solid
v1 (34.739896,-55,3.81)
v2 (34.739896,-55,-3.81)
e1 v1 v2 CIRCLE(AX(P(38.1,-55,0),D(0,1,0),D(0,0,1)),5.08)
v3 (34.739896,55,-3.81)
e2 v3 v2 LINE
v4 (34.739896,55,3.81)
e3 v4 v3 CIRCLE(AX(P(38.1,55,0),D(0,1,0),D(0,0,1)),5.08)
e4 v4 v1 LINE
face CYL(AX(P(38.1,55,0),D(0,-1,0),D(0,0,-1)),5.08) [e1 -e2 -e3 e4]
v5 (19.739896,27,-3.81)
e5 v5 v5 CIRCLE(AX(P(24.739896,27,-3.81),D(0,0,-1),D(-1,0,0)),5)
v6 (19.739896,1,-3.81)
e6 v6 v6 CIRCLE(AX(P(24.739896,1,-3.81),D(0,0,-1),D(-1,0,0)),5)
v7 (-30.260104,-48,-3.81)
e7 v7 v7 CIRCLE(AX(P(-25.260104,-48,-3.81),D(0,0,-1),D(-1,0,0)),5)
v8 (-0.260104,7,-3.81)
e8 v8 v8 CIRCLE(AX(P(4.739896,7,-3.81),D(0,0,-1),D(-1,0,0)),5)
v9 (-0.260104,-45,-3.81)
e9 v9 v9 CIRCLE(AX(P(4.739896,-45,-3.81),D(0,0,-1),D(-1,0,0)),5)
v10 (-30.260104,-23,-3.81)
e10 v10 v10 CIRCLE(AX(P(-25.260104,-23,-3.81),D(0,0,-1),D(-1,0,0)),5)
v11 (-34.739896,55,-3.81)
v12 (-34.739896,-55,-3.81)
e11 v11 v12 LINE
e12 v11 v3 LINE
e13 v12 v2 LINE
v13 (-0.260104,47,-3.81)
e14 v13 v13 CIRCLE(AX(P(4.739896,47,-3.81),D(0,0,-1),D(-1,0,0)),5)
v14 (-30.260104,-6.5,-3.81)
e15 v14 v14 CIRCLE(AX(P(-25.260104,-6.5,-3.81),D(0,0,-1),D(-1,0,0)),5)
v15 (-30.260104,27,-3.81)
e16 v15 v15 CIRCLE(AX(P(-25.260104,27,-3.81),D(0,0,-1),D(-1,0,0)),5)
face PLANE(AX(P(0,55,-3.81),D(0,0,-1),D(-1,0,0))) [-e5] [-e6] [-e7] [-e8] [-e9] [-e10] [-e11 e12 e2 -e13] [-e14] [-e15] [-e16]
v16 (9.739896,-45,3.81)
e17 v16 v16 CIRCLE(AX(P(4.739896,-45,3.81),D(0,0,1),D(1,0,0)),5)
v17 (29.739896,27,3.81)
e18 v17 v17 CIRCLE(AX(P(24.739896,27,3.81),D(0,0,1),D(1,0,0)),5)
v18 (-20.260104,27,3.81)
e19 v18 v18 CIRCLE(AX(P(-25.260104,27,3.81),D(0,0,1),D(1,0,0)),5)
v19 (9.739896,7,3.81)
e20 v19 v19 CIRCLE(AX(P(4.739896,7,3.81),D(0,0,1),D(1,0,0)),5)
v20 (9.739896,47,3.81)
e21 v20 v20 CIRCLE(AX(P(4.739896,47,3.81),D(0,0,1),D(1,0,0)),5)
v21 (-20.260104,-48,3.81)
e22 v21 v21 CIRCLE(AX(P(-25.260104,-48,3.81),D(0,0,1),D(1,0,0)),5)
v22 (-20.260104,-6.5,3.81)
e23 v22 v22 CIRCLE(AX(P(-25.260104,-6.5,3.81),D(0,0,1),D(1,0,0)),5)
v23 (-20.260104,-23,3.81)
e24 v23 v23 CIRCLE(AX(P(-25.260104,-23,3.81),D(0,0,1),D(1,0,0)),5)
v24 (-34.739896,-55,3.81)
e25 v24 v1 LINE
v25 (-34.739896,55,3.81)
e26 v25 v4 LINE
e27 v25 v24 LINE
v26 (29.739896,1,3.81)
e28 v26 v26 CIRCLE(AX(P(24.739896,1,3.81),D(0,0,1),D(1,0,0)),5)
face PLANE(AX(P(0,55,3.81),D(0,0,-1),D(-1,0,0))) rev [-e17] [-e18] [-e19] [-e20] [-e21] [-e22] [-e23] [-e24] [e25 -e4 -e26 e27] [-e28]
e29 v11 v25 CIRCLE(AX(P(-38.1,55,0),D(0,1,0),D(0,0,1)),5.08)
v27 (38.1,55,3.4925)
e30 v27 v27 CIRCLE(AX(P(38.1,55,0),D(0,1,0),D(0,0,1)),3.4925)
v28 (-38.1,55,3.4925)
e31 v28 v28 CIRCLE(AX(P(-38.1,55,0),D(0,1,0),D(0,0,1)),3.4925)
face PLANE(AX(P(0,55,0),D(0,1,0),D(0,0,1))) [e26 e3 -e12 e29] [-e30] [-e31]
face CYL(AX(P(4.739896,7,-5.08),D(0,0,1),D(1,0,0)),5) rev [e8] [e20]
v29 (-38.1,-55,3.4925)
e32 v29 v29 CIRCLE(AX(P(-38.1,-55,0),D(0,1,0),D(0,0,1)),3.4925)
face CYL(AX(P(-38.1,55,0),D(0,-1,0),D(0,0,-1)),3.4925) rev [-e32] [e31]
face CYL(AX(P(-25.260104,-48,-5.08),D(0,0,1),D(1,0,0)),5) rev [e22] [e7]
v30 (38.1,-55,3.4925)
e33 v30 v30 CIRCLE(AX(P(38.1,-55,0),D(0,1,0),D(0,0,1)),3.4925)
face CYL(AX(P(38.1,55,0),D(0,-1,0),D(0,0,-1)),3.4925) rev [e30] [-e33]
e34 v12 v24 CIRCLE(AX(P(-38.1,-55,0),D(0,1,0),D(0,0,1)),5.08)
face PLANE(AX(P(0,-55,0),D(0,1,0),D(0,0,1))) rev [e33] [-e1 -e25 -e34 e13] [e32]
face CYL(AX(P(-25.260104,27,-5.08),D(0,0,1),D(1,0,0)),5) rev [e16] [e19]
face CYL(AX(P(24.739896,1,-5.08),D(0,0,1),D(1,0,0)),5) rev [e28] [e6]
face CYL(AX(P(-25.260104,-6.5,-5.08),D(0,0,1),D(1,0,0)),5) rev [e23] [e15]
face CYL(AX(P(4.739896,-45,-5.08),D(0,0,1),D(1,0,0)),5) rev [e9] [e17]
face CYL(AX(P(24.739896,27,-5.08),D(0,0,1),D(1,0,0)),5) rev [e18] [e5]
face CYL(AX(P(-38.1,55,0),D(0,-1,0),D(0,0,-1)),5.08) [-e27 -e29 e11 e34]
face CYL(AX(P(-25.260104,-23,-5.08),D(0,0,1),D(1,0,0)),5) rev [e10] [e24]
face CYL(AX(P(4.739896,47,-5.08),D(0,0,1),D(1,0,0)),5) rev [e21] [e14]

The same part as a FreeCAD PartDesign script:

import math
import FreeCAD as App
import Part
import Sketcher
Q = App.Units.Quantity

doc = App.newDocument("Part")
body = doc.addObject("PartDesign::Body", "Body")

# Sketch on XZ plane
sketch1 = doc.addObject("Sketcher::SketchObject", "Sketch")
body.addObject(sketch1)
sketch1.AttachmentSupport = (doc.XZ_Plane, [""])
sketch1.MapMode = "FlatFace"
sketch1.addGeometry(Part.LineSegment(App.Vector(-34.7, 3.8, 0), App.Vector(34.7, 3.8, 0)), False)
sketch1.addGeometry(Part.ArcOfCircle(Part.Circle(App.Vector(38.1, 0, 0), App.Vector(0, 0, 1), 5.1), math.radians(0), math.radians(131)), False)
sketch1.addGeometry(Part.ArcOfCircle(Part.Circle(App.Vector(38.1, 0, 0), App.Vector(0, 0, 1), 5.1), math.radians(-131), math.radians(0)), False)
sketch1.addGeometry(Part.LineSegment(App.Vector(34.7, -3.8, 0), App.Vector(-34.7, -3.8, 0)), False)
sketch1.addGeometry(Part.ArcOfCircle(Part.Circle(App.Vector(-38.1, 0, 0), App.Vector(0, 0, 1), 5.1), math.radians(49), math.radians(311)), False)
sketch1.addGeometry(Part.ArcOfCircle(Part.Circle(App.Vector(38.1, 0, 0), App.Vector(0, 0, 1), 3.5), math.radians(90), math.radians(270)), False)
sketch1.addGeometry(Part.ArcOfCircle(Part.Circle(App.Vector(38.1, 0, 0), App.Vector(0, 0, 1), 3.5), math.radians(-90), math.radians(0)), False)
sketch1.addGeometry(Part.ArcOfCircle(Part.Circle(App.Vector(38.1, 0, 0), App.Vector(0, 0, 1), 3.5), math.radians(0), math.radians(90)), False)
sketch1.addGeometry(Part.ArcOfCircle(Part.Circle(App.Vector(-38.1, 0, 0), App.Vector(0, 0, 1), 3.5), math.radians(-90), math.radians(0)), False)
sketch1.addGeometry(Part.ArcOfCircle(Part.Circle(App.Vector(-38.1, 0, 0), App.Vector(0, 0, 1), 3.5), math.radians(0), math.radians(90)), False)
sketch1.addGeometry(Part.ArcOfCircle(Part.Circle(App.Vector(-38.1, 0, 0), App.Vector(0, 0, 1), 3.5), math.radians(90), math.radians(270)), False)
sketch1.addConstraint(Sketcher.Constraint("Coincident", 0, 2, 1, 2))
sketch1.addConstraint(Sketcher.Constraint("Tangent", 1, 1, 2, 2))
sketch1.addConstraint(Sketcher.Constraint("Coincident", 2, 1, 3, 1))
sketch1.addConstraint(Sketcher.Constraint("Coincident", 3, 2, 4, 2))
sketch1.addConstraint(Sketcher.Constraint("Coincident", 4, 1, 0, 1))
sketch1.addConstraint(Sketcher.Constraint("Tangent", 5, 2, 6, 1))
sketch1.addConstraint(Sketcher.Constraint("Tangent", 6, 2, 7, 1))
sketch1.addConstraint(Sketcher.Constraint("Tangent", 7, 2, 5, 1))
sketch1.addConstraint(Sketcher.Constraint("Tangent", 8, 2, 9, 1))
sketch1.addConstraint(Sketcher.Constraint("Tangent", 9, 2, 10, 1))
sketch1.addConstraint(Sketcher.Constraint("Tangent", 10, 2, 8, 1))
sketch1.addConstraint(Sketcher.Constraint("Horizontal", 0))
sketch1.addConstraint(Sketcher.Constraint("Horizontal", 3))
sketch1.addConstraint(Sketcher.Constraint("Coincident", 5, 3, 1, 3))
sketch1.addConstraint(Sketcher.Constraint("Coincident", 8, 3, 4, 3))
sketch1.addConstraint(Sketcher.Constraint("Equal", 1, 2))
sketch1.addConstraint(Sketcher.Constraint("Equal", 2, 4))
sketch1.addConstraint(Sketcher.Constraint("Equal", 7, 8))
sketch1.addConstraint(Sketcher.Constraint("Symmetric", 1, 3, 4, 3, -1, 1))
sketch1.addConstraint(Sketcher.Constraint("Symmetric", 7, 2, 9, 2, -2))
sketch1.addConstraint(Sketcher.Constraint("PointOnObject", 1, 1, -1))
sketch1.addConstraint(Sketcher.Constraint("PointOnObject", 6, 2, -1))
sketch1.addConstraint(Sketcher.Constraint("PointOnObject", 8, 2, -1))
sketch1.addConstraint(Sketcher.Constraint("Vertical", 0, 2, 2, 1))
sketch1.addConstraint(Sketcher.Constraint("Vertical", 7, 3, 5, 2))
sketch1.addConstraint(Sketcher.Constraint("Vertical", 5, 2, 7, 2))
sketch1.addConstraint(Sketcher.Constraint("Vertical", 9, 2, 10, 2))
sketch1.addConstraint(Sketcher.Constraint("Radius", 1, Q("0.2 in")))
sketch1.addConstraint(Sketcher.Constraint("DistanceX", 4, 3, 1, 3, Q("3 in")))
sketch1.addConstraint(Sketcher.Constraint("Radius", 5, Q("0.1375 in")))
sketch1.addConstraint(Sketcher.Constraint("DistanceY", 3, 2, 4, 1, Q("0.3 in")))
pad1 = doc.addObject("PartDesign::Pad", "Pad")
body.addObject(pad1)
pad1.Profile = sketch1
pad1.Length = 110
pad1.Midplane = True

# Sketch on XY plane
sketch2 = doc.addObject("Sketcher::SketchObject", "Sketch001")
body.addObject(sketch2)
sketch2.AttachmentSupport = (doc.XY_Plane, [""])
sketch2.MapMode = "FlatFace"
sketch2.AttachmentOffset = App.Placement(App.Vector(0, 0, 0.15 * 25.4), App.Rotation())
sketch2.addGeometry(Part.Circle(App.Vector(-25, -48, 0), App.Vector(0, 0, 1), 5), False)
sketch2.addGeometry(Part.Circle(App.Vector(-25, -23, 0), App.Vector(0, 0, 1), 5), False)
sketch2.addGeometry(Part.Circle(App.Vector(5, 47, 0), App.Vector(0, 0, 1), 5), False)
sketch2.addGeometry(Part.Circle(App.Vector(5, -45, 0), App.Vector(0, 0, 1), 5), False)
sketch2.addGeometry(Part.Circle(App.Vector(25, 1, 0), App.Vector(0, 0, 1), 5), False)
sketch2.addGeometry(Part.Circle(App.Vector(-25, 27, 0), App.Vector(0, 0, 1), 5), False)
sketch2.addGeometry(Part.Circle(App.Vector(25, 27, 0), App.Vector(0, 0, 1), 5), False)
sketch2.addGeometry(Part.Circle(App.Vector(-25, -6, 0), App.Vector(0, 0, 1), 5), False)
sketch2.addGeometry(Part.Circle(App.Vector(5, 7, 0), App.Vector(0, 0, 1), 5), False)
sketch2.addConstraint(Sketcher.Constraint("Equal", 0, 1))
sketch2.addConstraint(Sketcher.Constraint("Equal", 1, 2))
sketch2.addConstraint(Sketcher.Constraint("Equal", 2, 3))
sketch2.addConstraint(Sketcher.Constraint("Equal", 3, 4))
sketch2.addConstraint(Sketcher.Constraint("Equal", 4, 5))
sketch2.addConstraint(Sketcher.Constraint("Equal", 5, 6))
sketch2.addConstraint(Sketcher.Constraint("Equal", 6, 7))
sketch2.addConstraint(Sketcher.Constraint("Equal", 7, 8))
sketch2.addConstraint(Sketcher.Constraint("Horizontal", 5, 3, 6, 3))
sketch2.addConstraint(Sketcher.Constraint("Vertical", 0, 3, 1, 3))
sketch2.addConstraint(Sketcher.Constraint("Vertical", 2, 3, 3, 3))
sketch2.addConstraint(Sketcher.Constraint("Vertical", 1, 3, 5, 3))
sketch2.addConstraint(Sketcher.Constraint("Vertical", 4, 3, 6, 3))
sketch2.addConstraint(Sketcher.Constraint("Vertical", 5, 3, 7, 3))
sketch2.addConstraint(Sketcher.Constraint("Vertical", 3, 3, 8, 3))
sketch2.addConstraint(Sketcher.Constraint("Diameter", 0, 10.0))
sketch2.addConstraint(Sketcher.Constraint("DistanceY", 0, 3, -1, 1, 48.0))
sketch2.addConstraint(Sketcher.Constraint("DistanceY", 1, 3, -1, 1, 23.0))
sketch2.addConstraint(Sketcher.Constraint("DistanceY", -1, 1, 2, 3, 47.0))
sketch2.addConstraint(Sketcher.Constraint("DistanceY", 3, 3, -1, 1, 45.0))
sketch2.addConstraint(Sketcher.Constraint("DistanceY", -1, 1, 4, 3, 1.0))
sketch2.addConstraint(Sketcher.Constraint("DistanceY", -1, 1, 5, 3, 27.0))
sketch2.addConstraint(Sketcher.Constraint("DistanceY", 7, 3, -1, 1, 6.5))
sketch2.addConstraint(Sketcher.Constraint("DistanceY", -1, 1, 8, 3, 7.0))
sketch2.addConstraint(Sketcher.Constraint("DistanceX", 1, 3, 2, 3, 30.0))
sketch2.addConstraint(Sketcher.Constraint("DistanceX", 2, 3, 4, 3, 20.0))
sketch2.addConstraint(Sketcher.Constraint("DistanceX", 0, 3, -1, 1, 25.260104))
pocket1 = doc.addObject("PartDesign::Pocket", "Pocket")
body.addObject(pocket1)
pocket1.Profile = sketch2
pocket1.Type = "ThroughAll"

doc.recompute()
